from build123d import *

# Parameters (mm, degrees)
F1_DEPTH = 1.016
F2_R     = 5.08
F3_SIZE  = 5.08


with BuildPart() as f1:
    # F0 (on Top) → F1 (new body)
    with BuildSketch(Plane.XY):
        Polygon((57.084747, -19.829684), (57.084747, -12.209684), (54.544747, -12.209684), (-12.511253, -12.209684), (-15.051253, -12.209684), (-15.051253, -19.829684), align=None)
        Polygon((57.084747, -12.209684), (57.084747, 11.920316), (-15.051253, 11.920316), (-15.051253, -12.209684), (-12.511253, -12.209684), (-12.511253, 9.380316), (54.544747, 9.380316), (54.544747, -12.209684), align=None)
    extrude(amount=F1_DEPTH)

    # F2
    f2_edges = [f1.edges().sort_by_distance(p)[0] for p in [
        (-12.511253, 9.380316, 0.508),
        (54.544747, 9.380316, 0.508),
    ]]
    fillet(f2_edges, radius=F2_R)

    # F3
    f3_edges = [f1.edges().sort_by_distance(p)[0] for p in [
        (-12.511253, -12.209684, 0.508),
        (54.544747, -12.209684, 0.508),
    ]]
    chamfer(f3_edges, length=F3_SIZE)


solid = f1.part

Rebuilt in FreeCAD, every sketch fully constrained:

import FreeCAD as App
import Part
import Sketcher
from FreeCAD import Vector
Q = App.Units.Quantity


def edges_at(feature, points):
    """Names of the edges that pass closest to the given points."""
    edges = feature.Shape.Edges
    near = lambda p: min(range(len(edges)), key=lambda i: edges[i].distToShape(Part.Vertex(*p))[0])
    return sorted({f"Edge{near(p) + 1}" for p in points})


def add_polygon(sketch, points):
    """Adds a closed chain of lines whose ends are joined by coincident constraints."""
    first, n = sketch.GeometryCount, len(points)
    for a, b in zip(points, points[1:] + points[:1]):
        sketch.addGeometry(Part.LineSegment(App.Vector(*a, 0), App.Vector(*b, 0)), False)
    for i in range(n):
        sketch.addConstraint(Sketcher.Constraint("Coincident", first + i, 2, first + (i + 1) % n, 1))

doc = App.newDocument("Part")
body = doc.addObject("PartDesign::Body", "Body")

sketch1 = body.newObject("Sketcher::SketchObject", "Sketch")
sketch1.AttachmentSupport = (doc.getObject("XY_Plane"), [""])
sketch1.MapMode = "FlatFace"
add_polygon(sketch1, [(57, -20), (57, 12), (-15, 12), (-15, -20)])
add_polygon(sketch1, [(55, -12), (-13, -12), (-13, 9), (55, 9)])
sketch1.addConstraint(Sketcher.Constraint("Vertical", 0))
sketch1.addConstraint(Sketcher.Constraint("Horizontal", 1))
sketch1.addConstraint(Sketcher.Constraint("Vertical", 2))
sketch1.addConstraint(Sketcher.Constraint("Horizontal", 3))
sketch1.addConstraint(Sketcher.Constraint("Horizontal", 4))
sketch1.addConstraint(Sketcher.Constraint("Vertical", 5))
sketch1.addConstraint(Sketcher.Constraint("Horizontal", 6))
sketch1.addConstraint(Sketcher.Constraint("Vertical", 7))
sketch1.addConstraint(Sketcher.Constraint("DistanceX", 1, 2, 1, 1, Q("2.84 in")))
sketch1.addConstraint(Sketcher.Constraint("DistanceX", 4, 2, 4, 1, Q("2.64 in")))
sketch1.addConstraint(Sketcher.Constraint("DistanceY", 0, 1, 0, 2, Q("1.25 in")))
sketch1.addConstraint(Sketcher.Constraint("DistanceY", 5, 1, 5, 2, Q("0.85 in")))
sketch1.addConstraint(Sketcher.Constraint("DistanceX", 2, 2, 4, 2, Q("0.1 in")))
sketch1.addConstraint(Sketcher.Constraint("DistanceY", 2, 2, 4, 2, Q("0.3 in")))
sketch1.addConstraint(Sketcher.Constraint("DistanceX", -1, 1, 0, 2, Q("57.084747 mm")))
sketch1.addConstraint(Sketcher.Constraint("DistanceY", -1, 1, 0, 2, Q("11.920316 mm")))
pad1 = body.newObject("PartDesign::Pad", "Pad")
pad1.Profile = sketch1
pad1.Length = Q("0.04 in")
doc.recompute()

fillet = body.newObject("PartDesign::Fillet", "Fillet")
fillet.Base = (pad1, edges_at(pad1, [(-12.511, 9.38, 0.508), (54.545, 9.38, 0.508)]))
fillet.Radius = Q("0.2 in")
doc.recompute()

chamfer = body.newObject("PartDesign::Chamfer", "Chamfer")
chamfer.Base = (fillet, edges_at(fillet, [(-12.511, -12.21, 0.508), (54.545, -12.21, 0.508)]))
chamfer.Size = Q("0.2 in")

doc.recompute()
